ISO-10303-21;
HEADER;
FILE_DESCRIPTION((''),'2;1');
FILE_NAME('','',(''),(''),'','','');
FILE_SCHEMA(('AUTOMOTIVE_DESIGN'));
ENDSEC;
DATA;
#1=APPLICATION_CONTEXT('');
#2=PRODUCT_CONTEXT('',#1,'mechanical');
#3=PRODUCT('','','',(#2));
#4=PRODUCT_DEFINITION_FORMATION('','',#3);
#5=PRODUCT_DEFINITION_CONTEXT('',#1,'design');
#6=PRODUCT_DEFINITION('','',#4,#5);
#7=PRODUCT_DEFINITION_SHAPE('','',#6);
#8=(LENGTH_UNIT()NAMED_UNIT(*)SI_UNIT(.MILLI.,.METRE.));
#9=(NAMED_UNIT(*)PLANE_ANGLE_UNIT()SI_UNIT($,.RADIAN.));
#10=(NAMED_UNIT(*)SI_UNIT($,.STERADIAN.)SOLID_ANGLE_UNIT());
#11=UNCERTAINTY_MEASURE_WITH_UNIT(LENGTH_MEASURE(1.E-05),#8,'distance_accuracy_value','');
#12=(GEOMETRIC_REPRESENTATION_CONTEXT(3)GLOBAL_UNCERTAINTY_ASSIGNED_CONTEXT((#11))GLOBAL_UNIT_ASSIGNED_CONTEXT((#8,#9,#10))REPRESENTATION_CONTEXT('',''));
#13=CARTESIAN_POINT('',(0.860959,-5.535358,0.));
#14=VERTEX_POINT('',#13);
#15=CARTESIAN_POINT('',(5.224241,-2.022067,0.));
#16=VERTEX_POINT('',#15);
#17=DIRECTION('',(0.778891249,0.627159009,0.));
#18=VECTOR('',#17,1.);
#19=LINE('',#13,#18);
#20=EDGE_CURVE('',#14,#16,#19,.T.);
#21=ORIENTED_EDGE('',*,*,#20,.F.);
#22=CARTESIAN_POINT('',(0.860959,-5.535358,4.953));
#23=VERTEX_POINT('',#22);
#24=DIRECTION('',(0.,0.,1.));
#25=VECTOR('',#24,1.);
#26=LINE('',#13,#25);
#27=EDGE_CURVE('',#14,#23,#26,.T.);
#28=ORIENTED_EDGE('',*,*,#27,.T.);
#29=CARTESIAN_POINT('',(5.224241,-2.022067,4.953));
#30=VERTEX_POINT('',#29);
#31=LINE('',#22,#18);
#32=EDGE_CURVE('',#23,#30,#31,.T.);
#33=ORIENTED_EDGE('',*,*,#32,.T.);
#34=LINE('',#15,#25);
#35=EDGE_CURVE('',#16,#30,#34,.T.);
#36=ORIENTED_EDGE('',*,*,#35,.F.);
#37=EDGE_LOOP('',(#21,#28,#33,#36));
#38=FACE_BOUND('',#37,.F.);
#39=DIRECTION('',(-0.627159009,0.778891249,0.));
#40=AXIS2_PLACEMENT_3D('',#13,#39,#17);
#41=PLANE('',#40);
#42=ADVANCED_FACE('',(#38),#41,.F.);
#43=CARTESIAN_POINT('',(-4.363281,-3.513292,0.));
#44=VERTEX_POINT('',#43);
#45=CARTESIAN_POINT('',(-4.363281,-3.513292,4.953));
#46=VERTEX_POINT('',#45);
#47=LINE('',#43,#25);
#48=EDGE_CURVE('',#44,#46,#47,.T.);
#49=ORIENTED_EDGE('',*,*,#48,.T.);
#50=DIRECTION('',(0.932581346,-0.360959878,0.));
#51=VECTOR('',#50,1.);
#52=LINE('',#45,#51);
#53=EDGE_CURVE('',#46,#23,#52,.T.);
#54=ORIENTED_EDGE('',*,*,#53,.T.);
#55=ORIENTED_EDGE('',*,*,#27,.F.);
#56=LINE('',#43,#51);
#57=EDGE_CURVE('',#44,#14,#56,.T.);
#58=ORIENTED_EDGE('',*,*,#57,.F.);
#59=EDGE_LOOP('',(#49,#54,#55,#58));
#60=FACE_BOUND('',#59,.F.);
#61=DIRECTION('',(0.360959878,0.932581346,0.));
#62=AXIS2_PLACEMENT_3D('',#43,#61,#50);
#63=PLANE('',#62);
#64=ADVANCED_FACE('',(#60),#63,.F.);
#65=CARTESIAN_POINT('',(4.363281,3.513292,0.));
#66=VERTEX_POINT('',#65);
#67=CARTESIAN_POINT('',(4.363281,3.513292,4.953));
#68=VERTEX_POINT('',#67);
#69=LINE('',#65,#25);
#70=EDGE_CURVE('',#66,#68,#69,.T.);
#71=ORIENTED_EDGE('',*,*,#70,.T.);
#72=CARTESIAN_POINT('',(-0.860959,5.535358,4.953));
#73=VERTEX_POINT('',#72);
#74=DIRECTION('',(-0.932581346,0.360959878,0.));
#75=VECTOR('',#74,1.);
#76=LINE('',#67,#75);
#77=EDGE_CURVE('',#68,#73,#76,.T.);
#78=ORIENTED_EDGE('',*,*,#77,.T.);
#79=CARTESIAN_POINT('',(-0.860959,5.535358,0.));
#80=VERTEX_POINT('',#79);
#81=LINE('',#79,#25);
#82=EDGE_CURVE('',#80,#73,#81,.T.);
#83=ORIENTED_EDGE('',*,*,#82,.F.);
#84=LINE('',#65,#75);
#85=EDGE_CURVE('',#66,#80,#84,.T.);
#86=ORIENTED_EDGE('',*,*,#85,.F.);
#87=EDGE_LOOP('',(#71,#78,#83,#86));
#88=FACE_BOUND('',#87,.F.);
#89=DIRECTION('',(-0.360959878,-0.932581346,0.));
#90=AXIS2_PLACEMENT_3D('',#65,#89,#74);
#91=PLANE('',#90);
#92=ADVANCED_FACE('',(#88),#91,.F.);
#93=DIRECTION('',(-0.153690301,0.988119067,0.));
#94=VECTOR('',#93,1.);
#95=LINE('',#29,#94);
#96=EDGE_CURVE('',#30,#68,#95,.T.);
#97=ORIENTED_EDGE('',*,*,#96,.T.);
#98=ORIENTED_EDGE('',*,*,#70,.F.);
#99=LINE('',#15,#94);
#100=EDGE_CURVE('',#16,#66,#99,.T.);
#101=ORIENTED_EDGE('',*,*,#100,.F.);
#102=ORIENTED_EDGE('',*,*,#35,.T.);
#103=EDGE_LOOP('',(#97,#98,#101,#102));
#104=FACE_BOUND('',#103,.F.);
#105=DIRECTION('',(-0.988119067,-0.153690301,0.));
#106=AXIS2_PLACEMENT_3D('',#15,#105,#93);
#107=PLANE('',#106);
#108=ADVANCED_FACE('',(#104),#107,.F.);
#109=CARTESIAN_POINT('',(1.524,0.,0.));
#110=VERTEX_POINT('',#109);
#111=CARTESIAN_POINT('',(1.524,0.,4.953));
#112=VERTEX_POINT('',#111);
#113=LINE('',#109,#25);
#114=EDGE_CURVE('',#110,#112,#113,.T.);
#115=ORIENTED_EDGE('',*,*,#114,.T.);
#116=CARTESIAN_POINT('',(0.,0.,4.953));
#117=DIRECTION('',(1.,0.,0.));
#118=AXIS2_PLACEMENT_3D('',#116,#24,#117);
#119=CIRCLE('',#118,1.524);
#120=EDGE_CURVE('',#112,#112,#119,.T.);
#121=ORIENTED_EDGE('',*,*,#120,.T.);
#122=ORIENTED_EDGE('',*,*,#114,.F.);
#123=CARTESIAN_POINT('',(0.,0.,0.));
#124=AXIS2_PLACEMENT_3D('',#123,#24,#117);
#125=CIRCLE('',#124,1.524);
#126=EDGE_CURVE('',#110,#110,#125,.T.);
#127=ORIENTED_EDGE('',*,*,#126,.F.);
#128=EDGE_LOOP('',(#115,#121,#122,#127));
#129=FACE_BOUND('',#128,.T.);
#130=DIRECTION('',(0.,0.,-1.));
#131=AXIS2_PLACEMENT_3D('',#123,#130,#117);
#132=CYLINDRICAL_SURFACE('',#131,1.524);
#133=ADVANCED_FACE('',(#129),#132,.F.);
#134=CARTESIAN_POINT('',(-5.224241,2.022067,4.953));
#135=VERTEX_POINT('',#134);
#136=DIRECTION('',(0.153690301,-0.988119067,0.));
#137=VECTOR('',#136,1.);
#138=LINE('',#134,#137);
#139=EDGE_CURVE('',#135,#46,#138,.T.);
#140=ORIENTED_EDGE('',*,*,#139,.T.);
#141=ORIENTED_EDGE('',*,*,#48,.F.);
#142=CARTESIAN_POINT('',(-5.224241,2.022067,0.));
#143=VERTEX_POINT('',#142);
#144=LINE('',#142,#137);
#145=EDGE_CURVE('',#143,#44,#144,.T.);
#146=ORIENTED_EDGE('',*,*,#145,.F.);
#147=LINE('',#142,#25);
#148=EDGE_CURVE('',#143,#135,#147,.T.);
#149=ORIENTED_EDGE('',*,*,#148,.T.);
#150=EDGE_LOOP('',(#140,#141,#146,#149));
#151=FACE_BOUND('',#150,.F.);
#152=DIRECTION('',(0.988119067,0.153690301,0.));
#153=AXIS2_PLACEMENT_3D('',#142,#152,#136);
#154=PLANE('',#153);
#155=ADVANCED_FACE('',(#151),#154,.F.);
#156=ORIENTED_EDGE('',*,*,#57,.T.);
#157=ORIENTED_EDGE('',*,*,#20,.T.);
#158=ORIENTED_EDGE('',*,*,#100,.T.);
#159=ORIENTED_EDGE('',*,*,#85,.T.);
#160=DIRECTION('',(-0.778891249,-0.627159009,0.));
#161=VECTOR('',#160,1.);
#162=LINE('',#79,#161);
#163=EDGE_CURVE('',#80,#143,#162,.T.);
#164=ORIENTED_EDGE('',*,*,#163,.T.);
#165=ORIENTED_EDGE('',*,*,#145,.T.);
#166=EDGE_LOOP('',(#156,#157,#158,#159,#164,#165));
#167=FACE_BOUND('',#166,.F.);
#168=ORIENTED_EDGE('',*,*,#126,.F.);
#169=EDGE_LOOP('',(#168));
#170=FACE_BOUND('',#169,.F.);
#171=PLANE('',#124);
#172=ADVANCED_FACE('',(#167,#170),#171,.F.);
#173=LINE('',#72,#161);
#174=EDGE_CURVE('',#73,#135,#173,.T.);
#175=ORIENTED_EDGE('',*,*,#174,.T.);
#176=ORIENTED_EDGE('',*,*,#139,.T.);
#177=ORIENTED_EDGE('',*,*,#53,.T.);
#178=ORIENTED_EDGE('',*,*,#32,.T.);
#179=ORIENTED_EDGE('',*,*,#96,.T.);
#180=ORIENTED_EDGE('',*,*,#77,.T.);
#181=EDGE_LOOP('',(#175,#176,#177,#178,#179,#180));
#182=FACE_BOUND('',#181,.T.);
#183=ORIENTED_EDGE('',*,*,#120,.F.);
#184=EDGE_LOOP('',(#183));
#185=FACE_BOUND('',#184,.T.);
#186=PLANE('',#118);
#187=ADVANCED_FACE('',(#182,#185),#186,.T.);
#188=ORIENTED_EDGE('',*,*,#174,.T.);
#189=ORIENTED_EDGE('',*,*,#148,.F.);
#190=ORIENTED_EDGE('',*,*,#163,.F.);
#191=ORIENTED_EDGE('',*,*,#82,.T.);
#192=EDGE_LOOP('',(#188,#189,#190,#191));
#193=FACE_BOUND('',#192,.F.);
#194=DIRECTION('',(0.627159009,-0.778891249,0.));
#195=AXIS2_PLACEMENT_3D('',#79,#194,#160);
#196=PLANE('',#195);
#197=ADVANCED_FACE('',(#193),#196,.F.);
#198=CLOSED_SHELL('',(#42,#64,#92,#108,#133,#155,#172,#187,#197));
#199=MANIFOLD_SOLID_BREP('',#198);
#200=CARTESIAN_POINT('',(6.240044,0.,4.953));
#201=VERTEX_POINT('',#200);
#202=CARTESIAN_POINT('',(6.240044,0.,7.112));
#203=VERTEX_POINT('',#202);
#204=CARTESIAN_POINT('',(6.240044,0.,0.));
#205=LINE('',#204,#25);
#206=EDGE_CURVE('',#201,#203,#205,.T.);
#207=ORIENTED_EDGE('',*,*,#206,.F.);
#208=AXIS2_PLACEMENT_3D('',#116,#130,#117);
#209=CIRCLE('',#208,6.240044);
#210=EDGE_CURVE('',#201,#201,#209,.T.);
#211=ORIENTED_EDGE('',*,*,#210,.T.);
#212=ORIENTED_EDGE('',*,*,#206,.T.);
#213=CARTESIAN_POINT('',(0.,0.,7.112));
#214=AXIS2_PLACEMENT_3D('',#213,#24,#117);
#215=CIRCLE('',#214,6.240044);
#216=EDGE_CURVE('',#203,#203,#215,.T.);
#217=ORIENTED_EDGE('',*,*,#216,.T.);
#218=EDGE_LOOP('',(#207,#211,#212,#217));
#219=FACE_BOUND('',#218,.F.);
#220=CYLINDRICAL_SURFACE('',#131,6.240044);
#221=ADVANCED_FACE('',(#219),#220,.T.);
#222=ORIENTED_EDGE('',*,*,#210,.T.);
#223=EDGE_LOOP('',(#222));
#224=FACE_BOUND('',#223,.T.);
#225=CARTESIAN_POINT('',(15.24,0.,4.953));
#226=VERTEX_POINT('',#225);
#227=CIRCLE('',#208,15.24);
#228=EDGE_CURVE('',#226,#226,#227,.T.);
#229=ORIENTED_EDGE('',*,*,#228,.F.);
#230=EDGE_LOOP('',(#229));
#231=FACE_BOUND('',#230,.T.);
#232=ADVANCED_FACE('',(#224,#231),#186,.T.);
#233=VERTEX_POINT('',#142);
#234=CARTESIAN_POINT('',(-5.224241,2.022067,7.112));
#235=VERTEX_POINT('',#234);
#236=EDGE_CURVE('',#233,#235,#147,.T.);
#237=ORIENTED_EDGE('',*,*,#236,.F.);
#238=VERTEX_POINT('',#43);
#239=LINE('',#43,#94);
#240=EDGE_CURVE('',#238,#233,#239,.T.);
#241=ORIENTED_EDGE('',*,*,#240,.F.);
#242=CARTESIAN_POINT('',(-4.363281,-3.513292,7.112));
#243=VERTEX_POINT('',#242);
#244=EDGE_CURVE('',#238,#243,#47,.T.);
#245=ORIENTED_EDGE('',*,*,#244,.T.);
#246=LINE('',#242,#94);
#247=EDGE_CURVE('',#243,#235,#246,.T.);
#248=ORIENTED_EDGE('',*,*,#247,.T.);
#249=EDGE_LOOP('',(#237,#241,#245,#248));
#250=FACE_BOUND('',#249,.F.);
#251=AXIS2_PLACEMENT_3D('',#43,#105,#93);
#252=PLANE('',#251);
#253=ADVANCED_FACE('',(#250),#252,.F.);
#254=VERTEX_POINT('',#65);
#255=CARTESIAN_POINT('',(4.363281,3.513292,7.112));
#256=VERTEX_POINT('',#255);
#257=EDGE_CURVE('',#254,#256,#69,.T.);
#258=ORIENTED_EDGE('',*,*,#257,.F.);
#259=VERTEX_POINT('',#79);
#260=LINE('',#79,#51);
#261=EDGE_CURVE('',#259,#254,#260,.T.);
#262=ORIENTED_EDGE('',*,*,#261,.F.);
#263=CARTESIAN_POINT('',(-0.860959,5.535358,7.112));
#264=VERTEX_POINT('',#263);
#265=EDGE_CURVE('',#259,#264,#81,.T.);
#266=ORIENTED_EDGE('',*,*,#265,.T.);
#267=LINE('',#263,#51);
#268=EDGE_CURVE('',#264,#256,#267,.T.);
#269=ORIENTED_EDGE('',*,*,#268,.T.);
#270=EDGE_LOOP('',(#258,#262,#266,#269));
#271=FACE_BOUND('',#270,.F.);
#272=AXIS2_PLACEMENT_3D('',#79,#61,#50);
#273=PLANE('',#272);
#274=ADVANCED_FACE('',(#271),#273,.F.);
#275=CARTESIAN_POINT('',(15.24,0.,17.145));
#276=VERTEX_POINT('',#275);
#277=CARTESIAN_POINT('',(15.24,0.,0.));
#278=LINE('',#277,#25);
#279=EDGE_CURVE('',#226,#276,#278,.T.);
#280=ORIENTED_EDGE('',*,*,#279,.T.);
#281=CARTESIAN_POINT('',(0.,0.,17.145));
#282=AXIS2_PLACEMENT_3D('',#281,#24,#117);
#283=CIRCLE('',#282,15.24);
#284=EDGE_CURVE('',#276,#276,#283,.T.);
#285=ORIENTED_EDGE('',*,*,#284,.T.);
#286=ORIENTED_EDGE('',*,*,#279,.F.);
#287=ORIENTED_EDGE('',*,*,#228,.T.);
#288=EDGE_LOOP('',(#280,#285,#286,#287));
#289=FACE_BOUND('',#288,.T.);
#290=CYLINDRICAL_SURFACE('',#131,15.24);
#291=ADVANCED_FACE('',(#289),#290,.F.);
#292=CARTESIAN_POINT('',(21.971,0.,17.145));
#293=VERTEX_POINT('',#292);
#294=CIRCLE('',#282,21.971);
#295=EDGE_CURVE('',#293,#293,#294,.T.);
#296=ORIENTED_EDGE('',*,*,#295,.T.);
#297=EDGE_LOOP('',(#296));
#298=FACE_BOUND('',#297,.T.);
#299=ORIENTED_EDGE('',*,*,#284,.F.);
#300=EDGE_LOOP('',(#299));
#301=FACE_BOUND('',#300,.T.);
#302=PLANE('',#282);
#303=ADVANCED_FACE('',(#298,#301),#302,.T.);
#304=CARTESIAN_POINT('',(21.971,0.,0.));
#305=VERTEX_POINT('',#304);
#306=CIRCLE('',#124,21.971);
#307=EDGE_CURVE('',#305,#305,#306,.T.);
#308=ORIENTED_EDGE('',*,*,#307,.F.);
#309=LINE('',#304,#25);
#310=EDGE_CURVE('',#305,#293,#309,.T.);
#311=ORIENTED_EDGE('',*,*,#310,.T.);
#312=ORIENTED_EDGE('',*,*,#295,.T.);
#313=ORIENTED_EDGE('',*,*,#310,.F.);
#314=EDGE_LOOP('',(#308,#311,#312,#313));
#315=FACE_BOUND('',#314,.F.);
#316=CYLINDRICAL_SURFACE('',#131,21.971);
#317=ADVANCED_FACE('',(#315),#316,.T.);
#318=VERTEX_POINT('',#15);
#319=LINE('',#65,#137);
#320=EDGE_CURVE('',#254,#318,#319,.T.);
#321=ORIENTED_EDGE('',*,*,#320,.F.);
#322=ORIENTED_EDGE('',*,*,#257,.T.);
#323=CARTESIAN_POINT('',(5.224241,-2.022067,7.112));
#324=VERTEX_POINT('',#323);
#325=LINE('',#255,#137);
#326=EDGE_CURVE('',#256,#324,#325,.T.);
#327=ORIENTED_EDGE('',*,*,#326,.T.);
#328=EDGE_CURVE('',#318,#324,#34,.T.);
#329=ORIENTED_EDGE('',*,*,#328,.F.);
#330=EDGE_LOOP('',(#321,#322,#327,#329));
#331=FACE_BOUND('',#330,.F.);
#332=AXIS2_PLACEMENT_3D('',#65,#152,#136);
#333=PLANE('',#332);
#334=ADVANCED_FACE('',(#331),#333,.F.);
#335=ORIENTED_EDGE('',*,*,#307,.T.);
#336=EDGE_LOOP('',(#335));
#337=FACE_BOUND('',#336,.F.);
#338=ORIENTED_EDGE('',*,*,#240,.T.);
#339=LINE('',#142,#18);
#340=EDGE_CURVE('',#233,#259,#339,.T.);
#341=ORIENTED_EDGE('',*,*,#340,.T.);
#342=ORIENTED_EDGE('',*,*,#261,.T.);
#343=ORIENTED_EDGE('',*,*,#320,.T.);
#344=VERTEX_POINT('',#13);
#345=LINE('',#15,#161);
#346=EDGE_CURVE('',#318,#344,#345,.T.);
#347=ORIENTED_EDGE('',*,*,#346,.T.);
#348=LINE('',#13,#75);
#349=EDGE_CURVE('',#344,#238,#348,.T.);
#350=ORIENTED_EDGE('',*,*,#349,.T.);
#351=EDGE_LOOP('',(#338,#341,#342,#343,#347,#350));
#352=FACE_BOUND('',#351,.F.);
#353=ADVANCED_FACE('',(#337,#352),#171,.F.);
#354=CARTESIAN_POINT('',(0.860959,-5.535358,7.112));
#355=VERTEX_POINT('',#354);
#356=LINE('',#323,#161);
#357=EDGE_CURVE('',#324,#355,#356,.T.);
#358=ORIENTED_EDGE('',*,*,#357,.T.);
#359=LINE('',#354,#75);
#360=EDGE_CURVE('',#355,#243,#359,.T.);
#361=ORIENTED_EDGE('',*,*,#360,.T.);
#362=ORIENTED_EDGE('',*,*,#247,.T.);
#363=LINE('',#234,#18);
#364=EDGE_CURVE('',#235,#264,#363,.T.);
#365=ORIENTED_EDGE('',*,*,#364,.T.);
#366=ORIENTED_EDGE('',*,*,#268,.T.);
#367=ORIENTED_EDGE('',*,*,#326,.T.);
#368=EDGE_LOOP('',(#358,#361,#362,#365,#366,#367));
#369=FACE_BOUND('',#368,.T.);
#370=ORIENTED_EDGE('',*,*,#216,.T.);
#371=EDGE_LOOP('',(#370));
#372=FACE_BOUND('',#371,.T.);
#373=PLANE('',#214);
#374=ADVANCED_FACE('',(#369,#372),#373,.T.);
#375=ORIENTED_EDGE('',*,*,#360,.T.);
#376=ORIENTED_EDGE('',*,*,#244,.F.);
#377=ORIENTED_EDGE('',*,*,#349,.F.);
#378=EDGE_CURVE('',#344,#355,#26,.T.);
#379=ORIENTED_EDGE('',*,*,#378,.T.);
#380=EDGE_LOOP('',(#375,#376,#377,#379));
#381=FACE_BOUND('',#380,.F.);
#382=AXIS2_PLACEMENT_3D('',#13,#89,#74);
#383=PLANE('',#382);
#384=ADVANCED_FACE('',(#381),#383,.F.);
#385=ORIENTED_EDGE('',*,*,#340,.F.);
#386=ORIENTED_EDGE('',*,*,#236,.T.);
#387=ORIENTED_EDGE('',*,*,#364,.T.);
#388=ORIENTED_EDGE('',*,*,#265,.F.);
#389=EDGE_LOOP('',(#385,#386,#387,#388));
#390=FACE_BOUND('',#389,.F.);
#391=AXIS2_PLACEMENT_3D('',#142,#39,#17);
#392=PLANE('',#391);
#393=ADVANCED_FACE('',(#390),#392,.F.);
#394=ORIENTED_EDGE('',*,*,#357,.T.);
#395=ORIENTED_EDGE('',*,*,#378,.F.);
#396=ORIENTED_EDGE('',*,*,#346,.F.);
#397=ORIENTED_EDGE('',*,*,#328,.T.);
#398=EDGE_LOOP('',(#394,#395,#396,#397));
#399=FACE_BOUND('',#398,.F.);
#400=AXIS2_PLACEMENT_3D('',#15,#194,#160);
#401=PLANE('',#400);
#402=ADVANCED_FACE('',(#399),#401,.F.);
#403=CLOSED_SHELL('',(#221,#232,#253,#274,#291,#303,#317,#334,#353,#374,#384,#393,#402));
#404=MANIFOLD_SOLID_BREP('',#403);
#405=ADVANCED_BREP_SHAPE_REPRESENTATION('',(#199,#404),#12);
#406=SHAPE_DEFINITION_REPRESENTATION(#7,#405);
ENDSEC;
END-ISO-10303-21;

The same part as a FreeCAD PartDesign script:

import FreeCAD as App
import Part
import Sketcher

V = App.Vector
Q = App.Units.Quantity

doc = App.newDocument("Part")
params = doc.addObject("Spreadsheet::Sheet", "Params")
for row, (alias, value) in enumerate([
    ("sketch1_diameter", "0.12 in"),
    ("pad1_length", "0.195 in"),
    ("pad2_length", "0.28 in"),
    ("sketch3_diameter", "1.22 in"),
    ("pad3_length", "0.195 in"),
    ("sketch4_diameter", "1.2 in"),
    ("sketch4_diameter2", "1.73 in"),
    ("pad4_length", "0.675 in"),
], start=1):
    params.set(f"A{row}", alias)
    params.set(f"B{row}", "=" + value)
    params.setAlias(f"B{row}", alias)

body = doc.addObject("PartDesign::Body", "Body")

sketch1 = doc.addObject("Sketcher::SketchObject", "Sketch")
body.addObject(sketch1)
sketch1.AttachmentSupport = (doc.XY_Plane, [""])
sketch1.MapMode = "FlatFace"
sketch1.addGeometry([
    Part.LineSegment(V(-0.860959, 5.535358, 0), V(-5.224241, 2.022067, 0)),
    Part.LineSegment(V(-5.224241, 2.022067, 0), V(-4.363281, -3.513292, 0)),
    Part.LineSegment(V(-4.363281, -3.513292, 0), V(0.860959, -5.535358, 0)),
    Part.LineSegment(V(0.860959, -5.535358, 0), V(5.224241, -2.022067, 0)),
    Part.LineSegment(V(5.224241, -2.022067, 0), V(4.363281, 3.513292, 0)),
    Part.LineSegment(V(4.363281, 3.513292, 0), V(-0.860959, 5.535358, 0)),
    Part.Circle(V(0, 0, 0), V(0, 0, 1), 1.524),
], False)
sketch1.addConstraint([
    Sketcher.Constraint("Coincident", 0, 2, 1, 1),
    Sketcher.Constraint("Coincident", 1, 2, 2, 1),
    Sketcher.Constraint("Coincident", 2, 2, 3, 1),
    Sketcher.Constraint("Coincident", 3, 2, 4, 1),
    Sketcher.Constraint("Coincident", 4, 2, 5, 1),
    Sketcher.Constraint("Coincident", 5, 2, 0, 1),
    Sketcher.Constraint("Coincident", 6, 3, -1, 1),
    Sketcher.Constraint("Diameter", 6, Q("0.12 in")),
    Sketcher.Constraint("DistanceX", 0, 2, 2, 2, Q("6.0852 mm")),
    Sketcher.Constraint("DistanceX", 5, 2, 3, 2, Q("6.0852 mm")),
    Sketcher.Constraint("DistanceX", 0, 2, -1, 1, Q("5.224241 mm")),
    Sketcher.Constraint("DistanceX", 1, 2, -1, 1, Q("4.363281 mm")),
    Sketcher.Constraint("DistanceY", 1, 2, -1, 1, Q("3.513292 mm")),
    Sketcher.Constraint("DistanceX", -1, 1, 3, 2, Q("5.224241 mm")),
    Sketcher.Constraint("DistanceX", -1, 1, 4, 2, Q("4.363281 mm")),
    Sketcher.Constraint("DistanceY", -1, 1, 4, 2, Q("3.513292 mm")),
    Sketcher.Constraint("DistanceY", 1, 2, 0, 2, Q("5.535359 mm")),
    Sketcher.Constraint("DistanceY", 2, 2, 3, 2, Q("3.513291 mm")),
    Sketcher.Constraint("DistanceY", 3, 2, 4, 2, Q("5.535359 mm")),
    Sketcher.Constraint("DistanceY", 0, 2, 5, 2, Q("3.513291 mm")),
])
sketch1.setExpression("Constraints[7]", "Params.sketch1_diameter")
pad1 = doc.addObject("PartDesign::Pad", "Pad")
body.addObject(pad1)
pad1.Profile = sketch1
pad1.setExpression("Length", "Params.pad1_length")
body2 = doc.addObject("PartDesign::Body", "Body001")

sketch2 = doc.addObject("Sketcher::SketchObject", "Sketch001")
body2.addObject(sketch2)
sketch2.AttachmentSupport = (doc.getObject("XY_Plane001"), [""])
sketch2.MapMode = "FlatFace"
sketch2.addGeometry([
    Part.Circle(V(0, 0, 0), V(0, 0, 1), 6.240044),
    Part.LineSegment(V(0.860959, -5.535358, 0), V(-4.363281, -3.513292, 0)),
    Part.LineSegment(V(-4.363281, -3.513292, 0), V(-5.224241, 2.022067, 0)),
    Part.LineSegment(V(-5.224241, 2.022067, 0), V(-0.860959, 5.535358, 0)),
    Part.LineSegment(V(-0.860959, 5.535358, 0), V(4.363281, 3.513292, 0)),
    Part.LineSegment(V(4.363281, 3.513292, 0), V(5.224241, -2.022067, 0)),
    Part.LineSegment(V(5.224241, -2.022067, 0), V(0.860959, -5.535358, 0)),
], False)
sketch2.addConstraint([
    Sketcher.Constraint("Coincident", 1, 2, 2, 1),
    Sketcher.Constraint("Coincident", 2, 2, 3, 1),
    Sketcher.Constraint("Coincident", 3, 2, 4, 1),
    Sketcher.Constraint("Coincident", 4, 2, 5, 1),
    Sketcher.Constraint("Coincident", 5, 2, 6, 1),
    Sketcher.Constraint("Coincident", 6, 2, 1, 1),
    Sketcher.Constraint("Coincident", 0, 3, -1, 1),
    Sketcher.Constraint("Diameter", 0, Q("12.480088 mm")),
    Sketcher.Constraint("DistanceX", 3, 2, 5, 2, Q("6.0852 mm")),
    Sketcher.Constraint("DistanceX", 2, 2, 6, 2, Q("6.0852 mm")),
    Sketcher.Constraint("DistanceX", 1, 2, -1, 1, Q("4.363281 mm")),
    Sketcher.Constraint("DistanceY", 1, 2, -1, 1, Q("3.513292 mm")),
    Sketcher.Constraint("DistanceX", 2, 2, -1, 1, Q("5.224241 mm")),
    Sketcher.Constraint("DistanceX", 3, 2, -1, 1, Q("0.860959 mm")),
    Sketcher.Constraint("DistanceX", -1, 1, 4, 2, Q("4.363281 mm")),
    Sketcher.Constraint("DistanceY", -1, 1, 4, 2, Q("3.513292 mm")),
    Sketcher.Constraint("DistanceY", 1, 2, 2, 2, Q("5.535359 mm")),
    Sketcher.Constraint("DistanceY", 2, 2, 3, 2, Q("3.513291 mm")),
    Sketcher.Constraint("DistanceY", 5, 2, 4, 2, Q("5.535359 mm")),
    Sketcher.Constraint("DistanceY", 6, 2, 5, 2, Q("3.513291 mm")),
])
pad2 = doc.addObject("PartDesign::Pad", "Pad001")
body2.addObject(pad2)
pad2.Profile = sketch2
pad2.setExpression("Length", "Params.pad2_length")

sketch3 = doc.addObject("Sketcher::SketchObject", "Sketch002")
body2.addObject(sketch3)
sketch3.AttachmentSupport = (doc.getObject("XY_Plane001"), [""])
sketch3.MapMode = "FlatFace"
sketch3.addGeometry([
    Part.Circle(V(0, 0, 0), V(0, 0, 1), 15.494),
    Part.Circle(V(0, 0, 0), V(0, 0, 1), 5.855876),
], False)
sketch3.addConstraint([
    Sketcher.Constraint("Coincident", 0, 3, -1, 1),
    Sketcher.Constraint("Coincident", 1, 3, -1, 1),
    Sketcher.Constraint("Diameter", 0, Q("1.22 in")),
    Sketcher.Constraint("Diameter", 1, Q("11.711752 mm")),
])
sketch3.setExpression("Constraints[2]", "Params.sketch3_diameter")
pad3 = doc.addObject("PartDesign::Pad", "Pad002")
body2.addObject(pad3)
pad3.Profile = sketch3
pad3.setExpression("Length", "Params.pad3_length")

sketch4 = doc.addObject("Sketcher::SketchObject", "Sketch003")
body2.addObject(sketch4)
sketch4.AttachmentSupport = (doc.getObject("XY_Plane001"), [""])
sketch4.MapMode = "FlatFace"
sketch4.addGeometry([
    Part.Circle(V(0, 0, 0), V(0, 0, 1), 21.971),
    Part.Circle(V(0, 0, 0), V(0, 0, 1), 15.24),
], False)
sketch4.addConstraint([
    Sketcher.Constraint("Coincident", 0, 3, -1, 1),
    Sketcher.Constraint("Coincident", 1, 3, -1, 1),
    Sketcher.Constraint("Diameter", 1, Q("1.2 in")),
    Sketcher.Constraint("Diameter", 0, Q("1.73 in")),
])
sketch4.setExpression("Constraints[2]", "Params.sketch4_diameter")
sketch4.setExpression("Constraints[3]", "Params.sketch4_diameter2")
pad4 = doc.addObject("PartDesign::Pad", "Pad003")
body2.addObject(pad4)
pad4.Profile = sketch4
pad4.setExpression("Length", "Params.pad4_length")

doc.recompute()
